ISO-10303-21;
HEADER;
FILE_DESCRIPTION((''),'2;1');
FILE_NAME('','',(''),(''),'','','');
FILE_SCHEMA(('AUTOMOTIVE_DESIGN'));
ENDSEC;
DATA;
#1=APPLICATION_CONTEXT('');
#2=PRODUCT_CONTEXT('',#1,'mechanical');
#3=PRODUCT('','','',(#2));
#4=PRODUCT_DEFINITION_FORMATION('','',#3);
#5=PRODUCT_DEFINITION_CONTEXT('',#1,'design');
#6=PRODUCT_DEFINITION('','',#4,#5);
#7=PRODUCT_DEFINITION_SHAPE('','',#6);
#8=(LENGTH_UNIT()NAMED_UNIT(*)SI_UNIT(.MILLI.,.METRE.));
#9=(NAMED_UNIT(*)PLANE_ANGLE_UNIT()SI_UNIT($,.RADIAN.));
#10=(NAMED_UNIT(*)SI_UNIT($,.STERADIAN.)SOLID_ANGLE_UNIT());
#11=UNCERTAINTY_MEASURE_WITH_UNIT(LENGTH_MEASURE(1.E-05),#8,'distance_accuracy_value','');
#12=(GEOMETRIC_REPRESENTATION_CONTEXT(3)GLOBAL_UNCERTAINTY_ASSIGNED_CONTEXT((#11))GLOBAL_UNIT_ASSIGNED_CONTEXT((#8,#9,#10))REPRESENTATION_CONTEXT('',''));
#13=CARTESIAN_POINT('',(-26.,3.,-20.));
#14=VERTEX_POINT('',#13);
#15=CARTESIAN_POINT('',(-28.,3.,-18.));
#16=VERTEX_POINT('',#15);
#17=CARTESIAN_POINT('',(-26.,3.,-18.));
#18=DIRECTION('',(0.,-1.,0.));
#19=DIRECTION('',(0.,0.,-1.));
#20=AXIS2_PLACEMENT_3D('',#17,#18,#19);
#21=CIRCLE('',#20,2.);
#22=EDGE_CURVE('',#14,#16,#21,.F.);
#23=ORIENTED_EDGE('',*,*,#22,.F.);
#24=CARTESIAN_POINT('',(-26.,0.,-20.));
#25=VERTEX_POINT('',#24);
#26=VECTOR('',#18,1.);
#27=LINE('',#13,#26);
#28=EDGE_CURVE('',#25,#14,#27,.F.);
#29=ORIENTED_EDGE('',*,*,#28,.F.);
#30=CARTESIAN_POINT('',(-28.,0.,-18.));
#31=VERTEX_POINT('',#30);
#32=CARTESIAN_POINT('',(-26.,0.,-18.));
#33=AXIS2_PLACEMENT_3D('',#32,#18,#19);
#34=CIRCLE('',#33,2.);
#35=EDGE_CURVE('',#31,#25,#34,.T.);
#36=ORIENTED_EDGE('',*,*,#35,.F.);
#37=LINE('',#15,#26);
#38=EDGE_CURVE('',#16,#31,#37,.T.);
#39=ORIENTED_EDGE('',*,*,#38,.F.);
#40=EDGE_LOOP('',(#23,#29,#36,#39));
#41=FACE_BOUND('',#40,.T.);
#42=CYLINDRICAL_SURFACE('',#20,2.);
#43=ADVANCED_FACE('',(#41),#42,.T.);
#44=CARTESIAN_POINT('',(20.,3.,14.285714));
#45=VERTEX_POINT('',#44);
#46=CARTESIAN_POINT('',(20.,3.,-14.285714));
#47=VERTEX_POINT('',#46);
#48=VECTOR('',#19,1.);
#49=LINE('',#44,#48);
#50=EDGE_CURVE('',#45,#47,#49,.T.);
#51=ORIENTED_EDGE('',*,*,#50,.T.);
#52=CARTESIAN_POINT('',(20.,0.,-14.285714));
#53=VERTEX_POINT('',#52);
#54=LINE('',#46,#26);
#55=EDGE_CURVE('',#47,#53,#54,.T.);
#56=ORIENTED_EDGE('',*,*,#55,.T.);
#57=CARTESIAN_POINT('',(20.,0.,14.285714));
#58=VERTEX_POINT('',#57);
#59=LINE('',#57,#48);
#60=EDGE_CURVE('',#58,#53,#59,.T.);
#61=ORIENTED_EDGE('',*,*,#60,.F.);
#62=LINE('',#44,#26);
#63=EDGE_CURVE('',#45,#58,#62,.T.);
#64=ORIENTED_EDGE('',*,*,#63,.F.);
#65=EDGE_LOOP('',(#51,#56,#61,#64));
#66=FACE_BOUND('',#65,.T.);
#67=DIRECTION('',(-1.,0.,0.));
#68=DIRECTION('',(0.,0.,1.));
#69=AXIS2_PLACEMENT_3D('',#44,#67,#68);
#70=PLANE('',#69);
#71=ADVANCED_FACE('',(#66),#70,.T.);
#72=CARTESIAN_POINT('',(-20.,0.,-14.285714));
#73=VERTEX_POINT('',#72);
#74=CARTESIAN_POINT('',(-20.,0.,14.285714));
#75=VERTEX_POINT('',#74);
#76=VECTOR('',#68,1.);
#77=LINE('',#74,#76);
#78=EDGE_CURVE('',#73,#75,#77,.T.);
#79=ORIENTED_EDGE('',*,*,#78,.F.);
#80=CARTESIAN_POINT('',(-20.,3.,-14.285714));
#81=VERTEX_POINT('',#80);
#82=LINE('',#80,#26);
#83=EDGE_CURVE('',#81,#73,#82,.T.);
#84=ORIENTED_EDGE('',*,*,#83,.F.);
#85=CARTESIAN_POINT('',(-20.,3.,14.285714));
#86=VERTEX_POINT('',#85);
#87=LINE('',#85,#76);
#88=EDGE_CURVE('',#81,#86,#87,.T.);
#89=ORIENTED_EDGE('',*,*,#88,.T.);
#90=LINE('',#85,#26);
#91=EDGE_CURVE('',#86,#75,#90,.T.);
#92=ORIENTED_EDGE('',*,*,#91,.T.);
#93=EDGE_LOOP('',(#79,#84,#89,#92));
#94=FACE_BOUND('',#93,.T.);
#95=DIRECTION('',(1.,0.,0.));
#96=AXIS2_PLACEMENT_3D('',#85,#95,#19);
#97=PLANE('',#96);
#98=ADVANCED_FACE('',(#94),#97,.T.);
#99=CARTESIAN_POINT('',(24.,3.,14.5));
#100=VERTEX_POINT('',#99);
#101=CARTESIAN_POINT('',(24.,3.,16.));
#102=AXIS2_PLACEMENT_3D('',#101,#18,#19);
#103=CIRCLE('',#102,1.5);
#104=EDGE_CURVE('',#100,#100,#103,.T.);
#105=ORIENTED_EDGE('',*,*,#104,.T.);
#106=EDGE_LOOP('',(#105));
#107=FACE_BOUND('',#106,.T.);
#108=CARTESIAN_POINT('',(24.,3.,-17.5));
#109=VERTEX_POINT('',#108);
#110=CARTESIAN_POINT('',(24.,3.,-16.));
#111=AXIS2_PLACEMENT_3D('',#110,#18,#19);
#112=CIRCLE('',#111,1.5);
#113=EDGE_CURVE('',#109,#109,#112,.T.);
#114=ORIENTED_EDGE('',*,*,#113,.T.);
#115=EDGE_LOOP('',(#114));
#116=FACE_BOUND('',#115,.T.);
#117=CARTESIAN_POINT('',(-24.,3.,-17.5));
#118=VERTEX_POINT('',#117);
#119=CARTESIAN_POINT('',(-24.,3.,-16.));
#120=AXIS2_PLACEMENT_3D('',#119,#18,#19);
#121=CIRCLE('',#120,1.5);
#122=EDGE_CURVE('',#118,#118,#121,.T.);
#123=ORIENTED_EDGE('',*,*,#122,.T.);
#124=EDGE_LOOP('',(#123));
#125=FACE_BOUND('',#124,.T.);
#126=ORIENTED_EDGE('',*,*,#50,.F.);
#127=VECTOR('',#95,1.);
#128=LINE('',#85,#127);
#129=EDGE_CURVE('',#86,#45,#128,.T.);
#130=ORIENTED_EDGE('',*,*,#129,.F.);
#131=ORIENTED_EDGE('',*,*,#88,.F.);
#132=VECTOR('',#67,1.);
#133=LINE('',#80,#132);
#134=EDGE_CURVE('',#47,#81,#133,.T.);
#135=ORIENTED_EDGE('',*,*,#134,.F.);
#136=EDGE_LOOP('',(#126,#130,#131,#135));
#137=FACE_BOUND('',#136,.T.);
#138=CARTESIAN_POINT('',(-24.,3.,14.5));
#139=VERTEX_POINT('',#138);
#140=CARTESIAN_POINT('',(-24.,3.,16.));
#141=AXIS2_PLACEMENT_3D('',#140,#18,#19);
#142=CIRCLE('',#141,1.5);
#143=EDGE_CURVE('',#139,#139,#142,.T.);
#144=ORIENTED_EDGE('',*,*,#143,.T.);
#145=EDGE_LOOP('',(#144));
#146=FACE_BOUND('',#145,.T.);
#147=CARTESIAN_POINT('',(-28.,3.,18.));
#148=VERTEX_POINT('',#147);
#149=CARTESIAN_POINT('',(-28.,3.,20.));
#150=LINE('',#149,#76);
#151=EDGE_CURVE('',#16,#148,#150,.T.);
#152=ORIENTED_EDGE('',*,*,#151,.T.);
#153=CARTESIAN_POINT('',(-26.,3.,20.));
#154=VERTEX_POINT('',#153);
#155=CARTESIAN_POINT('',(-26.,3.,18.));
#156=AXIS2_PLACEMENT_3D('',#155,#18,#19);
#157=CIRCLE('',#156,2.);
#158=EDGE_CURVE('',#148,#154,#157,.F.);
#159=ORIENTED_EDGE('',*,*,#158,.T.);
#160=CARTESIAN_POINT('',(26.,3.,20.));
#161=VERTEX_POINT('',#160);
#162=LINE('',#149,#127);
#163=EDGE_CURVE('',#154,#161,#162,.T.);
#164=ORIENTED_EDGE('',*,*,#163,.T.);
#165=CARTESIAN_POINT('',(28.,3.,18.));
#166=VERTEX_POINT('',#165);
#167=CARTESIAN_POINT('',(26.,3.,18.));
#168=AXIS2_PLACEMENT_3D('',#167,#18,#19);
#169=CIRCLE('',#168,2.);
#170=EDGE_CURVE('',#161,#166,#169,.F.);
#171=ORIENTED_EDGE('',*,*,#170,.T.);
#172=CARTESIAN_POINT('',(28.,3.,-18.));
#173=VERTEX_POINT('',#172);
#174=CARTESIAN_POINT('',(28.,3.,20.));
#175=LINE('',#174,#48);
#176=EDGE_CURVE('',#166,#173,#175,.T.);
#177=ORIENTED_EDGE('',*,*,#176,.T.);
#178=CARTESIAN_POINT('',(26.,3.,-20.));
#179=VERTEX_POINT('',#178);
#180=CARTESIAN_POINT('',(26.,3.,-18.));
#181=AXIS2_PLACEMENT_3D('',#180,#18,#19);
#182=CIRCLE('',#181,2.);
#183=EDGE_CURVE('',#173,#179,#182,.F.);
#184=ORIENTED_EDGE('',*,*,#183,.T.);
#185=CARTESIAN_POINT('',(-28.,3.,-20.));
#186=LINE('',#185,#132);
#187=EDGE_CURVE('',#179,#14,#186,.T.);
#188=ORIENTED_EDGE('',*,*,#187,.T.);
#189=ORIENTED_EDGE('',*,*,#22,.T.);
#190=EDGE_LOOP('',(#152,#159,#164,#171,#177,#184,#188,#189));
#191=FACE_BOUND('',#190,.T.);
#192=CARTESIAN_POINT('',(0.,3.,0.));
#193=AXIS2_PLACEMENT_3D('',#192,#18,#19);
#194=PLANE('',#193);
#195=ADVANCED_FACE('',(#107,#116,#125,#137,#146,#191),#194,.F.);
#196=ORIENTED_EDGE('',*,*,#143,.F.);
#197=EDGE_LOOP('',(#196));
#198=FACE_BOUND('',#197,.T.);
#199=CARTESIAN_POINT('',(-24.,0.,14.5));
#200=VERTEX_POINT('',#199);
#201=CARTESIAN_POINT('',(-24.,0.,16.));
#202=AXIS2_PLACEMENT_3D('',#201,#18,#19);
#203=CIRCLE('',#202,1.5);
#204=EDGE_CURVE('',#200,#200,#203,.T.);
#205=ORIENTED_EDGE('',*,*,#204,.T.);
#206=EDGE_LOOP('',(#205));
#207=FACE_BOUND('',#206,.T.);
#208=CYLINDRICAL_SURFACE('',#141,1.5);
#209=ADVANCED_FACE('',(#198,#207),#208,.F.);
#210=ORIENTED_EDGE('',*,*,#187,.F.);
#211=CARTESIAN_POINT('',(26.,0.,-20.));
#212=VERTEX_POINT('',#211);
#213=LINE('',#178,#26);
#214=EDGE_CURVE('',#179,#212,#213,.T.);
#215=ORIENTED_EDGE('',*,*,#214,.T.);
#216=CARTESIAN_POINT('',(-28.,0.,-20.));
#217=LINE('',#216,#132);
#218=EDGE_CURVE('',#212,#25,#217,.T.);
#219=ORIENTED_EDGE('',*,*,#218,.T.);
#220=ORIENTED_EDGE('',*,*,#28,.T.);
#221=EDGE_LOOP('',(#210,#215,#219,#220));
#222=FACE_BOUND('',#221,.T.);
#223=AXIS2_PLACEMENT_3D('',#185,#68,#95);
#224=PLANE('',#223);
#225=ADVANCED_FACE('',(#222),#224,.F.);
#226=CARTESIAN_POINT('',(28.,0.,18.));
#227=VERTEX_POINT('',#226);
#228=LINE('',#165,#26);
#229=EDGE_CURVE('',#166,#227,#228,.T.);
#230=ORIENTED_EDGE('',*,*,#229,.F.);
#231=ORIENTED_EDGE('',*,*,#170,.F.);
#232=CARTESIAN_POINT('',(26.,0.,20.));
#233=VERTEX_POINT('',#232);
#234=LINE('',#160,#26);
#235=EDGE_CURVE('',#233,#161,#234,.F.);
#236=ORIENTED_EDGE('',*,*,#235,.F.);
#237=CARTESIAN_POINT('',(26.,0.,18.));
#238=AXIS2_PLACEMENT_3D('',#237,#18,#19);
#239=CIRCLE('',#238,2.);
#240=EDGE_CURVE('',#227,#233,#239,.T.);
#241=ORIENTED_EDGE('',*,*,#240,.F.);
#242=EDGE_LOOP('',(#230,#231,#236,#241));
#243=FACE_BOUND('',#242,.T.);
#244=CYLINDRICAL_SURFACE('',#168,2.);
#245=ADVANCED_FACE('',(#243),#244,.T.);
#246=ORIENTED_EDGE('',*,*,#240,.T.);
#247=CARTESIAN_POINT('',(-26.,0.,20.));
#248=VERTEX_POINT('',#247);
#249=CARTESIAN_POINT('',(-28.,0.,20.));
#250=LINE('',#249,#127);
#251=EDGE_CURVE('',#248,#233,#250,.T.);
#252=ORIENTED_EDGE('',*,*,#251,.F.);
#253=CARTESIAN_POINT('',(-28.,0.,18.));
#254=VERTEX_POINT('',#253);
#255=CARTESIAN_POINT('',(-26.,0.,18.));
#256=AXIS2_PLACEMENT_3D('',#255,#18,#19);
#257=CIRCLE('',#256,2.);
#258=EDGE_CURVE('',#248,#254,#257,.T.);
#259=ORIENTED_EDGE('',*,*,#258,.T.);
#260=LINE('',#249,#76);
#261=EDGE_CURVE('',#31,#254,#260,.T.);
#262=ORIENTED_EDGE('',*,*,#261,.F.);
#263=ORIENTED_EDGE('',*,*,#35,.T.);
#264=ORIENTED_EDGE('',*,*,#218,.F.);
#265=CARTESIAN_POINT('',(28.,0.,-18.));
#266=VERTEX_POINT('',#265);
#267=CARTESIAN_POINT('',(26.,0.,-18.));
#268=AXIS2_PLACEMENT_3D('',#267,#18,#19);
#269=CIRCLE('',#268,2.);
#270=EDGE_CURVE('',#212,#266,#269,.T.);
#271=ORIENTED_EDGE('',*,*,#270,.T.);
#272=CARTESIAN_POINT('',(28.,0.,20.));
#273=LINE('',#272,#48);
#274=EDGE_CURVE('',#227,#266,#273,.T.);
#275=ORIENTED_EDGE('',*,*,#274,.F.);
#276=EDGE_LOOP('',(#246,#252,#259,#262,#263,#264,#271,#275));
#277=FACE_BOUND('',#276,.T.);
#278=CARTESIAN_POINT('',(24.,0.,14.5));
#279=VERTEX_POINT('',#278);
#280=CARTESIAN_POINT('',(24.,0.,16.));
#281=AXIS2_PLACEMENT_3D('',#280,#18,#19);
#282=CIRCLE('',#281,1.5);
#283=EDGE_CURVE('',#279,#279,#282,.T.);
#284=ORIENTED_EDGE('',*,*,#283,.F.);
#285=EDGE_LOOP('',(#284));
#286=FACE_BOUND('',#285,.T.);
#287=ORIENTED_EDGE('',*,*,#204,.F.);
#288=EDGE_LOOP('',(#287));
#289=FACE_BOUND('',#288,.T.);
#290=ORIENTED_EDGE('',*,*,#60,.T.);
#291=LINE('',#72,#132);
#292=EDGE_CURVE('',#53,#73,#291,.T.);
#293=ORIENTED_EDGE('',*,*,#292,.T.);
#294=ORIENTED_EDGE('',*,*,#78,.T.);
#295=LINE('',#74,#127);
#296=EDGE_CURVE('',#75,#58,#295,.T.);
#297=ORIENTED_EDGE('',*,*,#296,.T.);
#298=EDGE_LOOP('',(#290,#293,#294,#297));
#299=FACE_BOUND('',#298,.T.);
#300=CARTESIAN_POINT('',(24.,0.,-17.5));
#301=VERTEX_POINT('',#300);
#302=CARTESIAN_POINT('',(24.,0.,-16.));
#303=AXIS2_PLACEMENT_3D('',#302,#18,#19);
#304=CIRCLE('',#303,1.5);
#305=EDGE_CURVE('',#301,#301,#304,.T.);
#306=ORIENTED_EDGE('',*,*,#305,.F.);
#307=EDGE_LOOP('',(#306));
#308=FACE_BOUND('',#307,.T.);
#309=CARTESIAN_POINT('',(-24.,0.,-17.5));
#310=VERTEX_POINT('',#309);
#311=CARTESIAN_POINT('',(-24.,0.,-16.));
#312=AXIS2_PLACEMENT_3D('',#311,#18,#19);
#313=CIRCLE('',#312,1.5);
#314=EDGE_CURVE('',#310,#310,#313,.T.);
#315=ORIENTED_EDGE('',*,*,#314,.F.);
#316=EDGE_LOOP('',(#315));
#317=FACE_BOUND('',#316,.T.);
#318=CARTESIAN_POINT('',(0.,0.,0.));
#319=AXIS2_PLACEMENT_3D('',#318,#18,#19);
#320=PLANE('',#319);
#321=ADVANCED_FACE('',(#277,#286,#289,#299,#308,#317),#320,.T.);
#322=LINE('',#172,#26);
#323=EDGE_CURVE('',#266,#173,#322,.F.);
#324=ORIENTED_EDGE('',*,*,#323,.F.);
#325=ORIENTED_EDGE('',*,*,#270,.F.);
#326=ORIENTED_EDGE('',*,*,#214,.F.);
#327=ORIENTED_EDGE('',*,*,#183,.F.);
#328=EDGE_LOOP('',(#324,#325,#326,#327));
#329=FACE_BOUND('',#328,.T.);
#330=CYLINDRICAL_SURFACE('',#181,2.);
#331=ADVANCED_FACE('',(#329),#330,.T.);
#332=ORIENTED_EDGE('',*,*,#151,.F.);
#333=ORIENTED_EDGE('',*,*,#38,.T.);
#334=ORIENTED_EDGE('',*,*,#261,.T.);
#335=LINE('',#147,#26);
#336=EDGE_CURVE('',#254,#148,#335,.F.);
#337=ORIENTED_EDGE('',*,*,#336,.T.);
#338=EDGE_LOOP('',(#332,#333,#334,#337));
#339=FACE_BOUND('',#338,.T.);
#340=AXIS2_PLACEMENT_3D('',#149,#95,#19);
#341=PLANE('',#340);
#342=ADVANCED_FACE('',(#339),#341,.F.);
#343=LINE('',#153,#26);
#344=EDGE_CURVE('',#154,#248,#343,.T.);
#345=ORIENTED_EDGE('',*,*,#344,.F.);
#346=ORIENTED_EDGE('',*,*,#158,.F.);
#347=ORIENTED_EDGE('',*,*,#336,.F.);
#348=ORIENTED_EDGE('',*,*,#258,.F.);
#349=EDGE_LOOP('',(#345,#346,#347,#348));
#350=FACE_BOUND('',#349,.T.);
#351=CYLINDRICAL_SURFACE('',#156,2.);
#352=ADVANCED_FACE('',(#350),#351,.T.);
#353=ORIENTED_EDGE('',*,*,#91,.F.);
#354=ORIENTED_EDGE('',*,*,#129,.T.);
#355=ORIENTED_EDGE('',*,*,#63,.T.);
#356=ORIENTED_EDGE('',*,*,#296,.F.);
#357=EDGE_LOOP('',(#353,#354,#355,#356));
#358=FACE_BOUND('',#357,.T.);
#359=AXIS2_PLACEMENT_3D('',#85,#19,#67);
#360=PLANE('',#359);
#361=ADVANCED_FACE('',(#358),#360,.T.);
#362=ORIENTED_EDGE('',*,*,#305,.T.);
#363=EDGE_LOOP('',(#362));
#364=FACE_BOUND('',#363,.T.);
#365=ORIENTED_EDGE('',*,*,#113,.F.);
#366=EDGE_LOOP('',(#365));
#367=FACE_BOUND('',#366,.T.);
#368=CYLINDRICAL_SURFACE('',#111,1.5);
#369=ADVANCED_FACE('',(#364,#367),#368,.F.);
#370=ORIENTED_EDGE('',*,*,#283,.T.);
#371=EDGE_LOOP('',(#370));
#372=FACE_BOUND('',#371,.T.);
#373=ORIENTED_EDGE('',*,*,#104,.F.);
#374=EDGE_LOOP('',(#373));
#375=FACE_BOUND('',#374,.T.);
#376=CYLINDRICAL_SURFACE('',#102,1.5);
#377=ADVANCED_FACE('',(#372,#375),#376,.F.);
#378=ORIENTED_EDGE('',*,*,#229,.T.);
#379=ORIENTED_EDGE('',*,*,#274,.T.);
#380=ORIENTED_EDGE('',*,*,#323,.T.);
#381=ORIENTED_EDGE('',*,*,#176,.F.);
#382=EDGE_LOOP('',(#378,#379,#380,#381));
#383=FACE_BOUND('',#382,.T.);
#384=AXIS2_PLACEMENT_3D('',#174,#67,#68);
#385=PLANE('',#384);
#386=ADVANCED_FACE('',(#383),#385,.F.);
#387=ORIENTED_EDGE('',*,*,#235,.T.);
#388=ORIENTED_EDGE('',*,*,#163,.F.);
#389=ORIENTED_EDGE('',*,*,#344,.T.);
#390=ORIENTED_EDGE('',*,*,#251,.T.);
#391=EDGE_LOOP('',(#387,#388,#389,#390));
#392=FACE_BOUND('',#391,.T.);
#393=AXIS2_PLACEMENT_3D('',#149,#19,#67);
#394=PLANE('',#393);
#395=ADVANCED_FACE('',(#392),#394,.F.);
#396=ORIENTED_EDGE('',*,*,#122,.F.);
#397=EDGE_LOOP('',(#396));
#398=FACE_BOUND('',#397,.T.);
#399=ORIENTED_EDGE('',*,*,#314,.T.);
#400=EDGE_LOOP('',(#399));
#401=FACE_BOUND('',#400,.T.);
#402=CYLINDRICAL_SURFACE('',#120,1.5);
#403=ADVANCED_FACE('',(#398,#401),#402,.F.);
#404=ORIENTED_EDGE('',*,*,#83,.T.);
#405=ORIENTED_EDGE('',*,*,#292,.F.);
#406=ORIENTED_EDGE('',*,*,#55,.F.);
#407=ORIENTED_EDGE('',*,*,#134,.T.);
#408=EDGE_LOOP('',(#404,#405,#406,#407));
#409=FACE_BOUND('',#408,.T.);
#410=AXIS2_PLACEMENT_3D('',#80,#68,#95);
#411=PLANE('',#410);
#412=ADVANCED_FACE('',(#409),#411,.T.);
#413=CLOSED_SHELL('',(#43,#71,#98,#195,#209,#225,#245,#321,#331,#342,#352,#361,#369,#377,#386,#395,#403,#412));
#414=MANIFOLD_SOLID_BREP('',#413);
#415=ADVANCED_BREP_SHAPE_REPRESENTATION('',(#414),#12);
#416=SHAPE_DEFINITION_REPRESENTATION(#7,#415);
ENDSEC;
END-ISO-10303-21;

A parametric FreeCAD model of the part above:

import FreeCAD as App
import Part
import Sketcher
from FreeCAD import Vector
Q = App.Units.Quantity


def edges_at(feature, points):
    """Names of the edges that pass closest to the given points."""
    edges = feature.Shape.Edges
    near = lambda p: min(range(len(edges)), key=lambda i: edges[i].distToShape(Part.Vertex(*p))[0])
    return sorted({f"Edge{near(p) + 1}" for p in points})


def add_polygon(sketch, points):
    """Adds a closed chain of lines whose ends are joined by coincident constraints."""
    first, n = sketch.GeometryCount, len(points)
    for a, b in zip(points, points[1:] + points[:1]):
        sketch.addGeometry(Part.LineSegment(App.Vector(*a, 0), App.Vector(*b, 0)), False)
    for i in range(n):
        sketch.addConstraint(Sketcher.Constraint("Coincident", first + i, 2, first + (i + 1) % n, 1))

doc = App.newDocument("Part")
body = doc.addObject("PartDesign::Body", "Body")

# Sketch on XZ plane
sketch1 = body.newObject("Sketcher::SketchObject", "Sketch")
sketch1.AttachmentSupport = (doc.getObject("XZ_Plane"), [""])
sketch1.MapMode = "FlatFace"
add_polygon(sketch1, [(-28, -20), (-28, 20), (28, 20), (28, -20)])  # lines 0-3
add_polygon(sketch1, [(20, 14.285714), (-20, 14.285714), (-20, -14.285714), (20, -14.285714)])  # lines 4-7
sketch1.addConstraint([
    Sketcher.Constraint("Vertical", 0),
    Sketcher.Constraint("Horizontal", 1),
    Sketcher.Constraint("Vertical", 2),
    Sketcher.Constraint("Horizontal", 3),
    Sketcher.Constraint("Horizontal", 4),
    Sketcher.Constraint("Vertical", 5),
    Sketcher.Constraint("Horizontal", 6),
    Sketcher.Constraint("Vertical", 7),
    Sketcher.Constraint("Symmetric", 0, 2, 2, 2, -1, 1),
    Sketcher.Constraint("Symmetric", 4, 2, 6, 2, -1, 1),
    Sketcher.Constraint("Equal", 6, 0),
    Sketcher.Constraint("DistanceX", 1, 1, 1, 2, Q("56 mm")),
    Sketcher.Constraint("DistanceX", 4, 2, 4, 1, Q("40 mm")),
    Sketcher.Constraint("DistanceY", 5, 2, 5, 1, Q("28.571429 mm")),
])
pad1 = body.newObject("PartDesign::Pad", "Pad")
pad1.Profile = sketch1
pad1.Length = 3
pad1.Reversed = True

# Sketch on XZ plane
sketch2 = body.newObject("Sketcher::SketchObject", "Sketch001")
sketch2.AttachmentSupport = (doc.getObject("XZ_Plane"), [""])
sketch2.MapMode = "FlatFace"
sketch2.addGeometry([
    Part.Circle(Vector(-24, 16, 0), Vector(0, 0, 1), 1.5),
    Part.Circle(Vector(24, -16, 0), Vector(0, 0, 1), 1.5),
    Part.Circle(Vector(24, 16, 0), Vector(0, 0, 1), 1.5),
    Part.Circle(Vector(-24, -16, 0), Vector(0, 0, 1), 1.5),
], False)
sketch2.addConstraint([
    Sketcher.Constraint("Equal", 0, 1),
    Sketcher.Constraint("Equal", 1, 2),
    Sketcher.Constraint("Equal", 2, 3),
    Sketcher.Constraint("Symmetric", 0, 3, 1, 3, -1, 1),
    Sketcher.Constraint("Symmetric", 2, 3, 3, 3, -1, 1),
    Sketcher.Constraint("Symmetric", 0, 3, 2, 3, -2),
    Sketcher.Constraint("Diameter", 0, Q("3 mm")),
    Sketcher.Constraint("DistanceX", 0, 3, -1, 1, Q("24 mm")),
    Sketcher.Constraint("DistanceY", -1, 1, 0, 3, Q("16 mm")),
])
pocket1 = body.newObject("PartDesign::Pocket", "Pocket")
pocket1.Profile = sketch2
pocket1.Type = "ThroughAll"
doc.recompute()

fillet = body.newObject("PartDesign::Fillet", "Fillet")
fillet.Base = (pocket1, edges_at(pocket1, [
    (28, 1.5, 20),
    (-28, 1.5, 20),
    (-28, 1.5, -20),
    (28, 1.5, -20),
]))
fillet.Radius = 2

doc.recompute()
